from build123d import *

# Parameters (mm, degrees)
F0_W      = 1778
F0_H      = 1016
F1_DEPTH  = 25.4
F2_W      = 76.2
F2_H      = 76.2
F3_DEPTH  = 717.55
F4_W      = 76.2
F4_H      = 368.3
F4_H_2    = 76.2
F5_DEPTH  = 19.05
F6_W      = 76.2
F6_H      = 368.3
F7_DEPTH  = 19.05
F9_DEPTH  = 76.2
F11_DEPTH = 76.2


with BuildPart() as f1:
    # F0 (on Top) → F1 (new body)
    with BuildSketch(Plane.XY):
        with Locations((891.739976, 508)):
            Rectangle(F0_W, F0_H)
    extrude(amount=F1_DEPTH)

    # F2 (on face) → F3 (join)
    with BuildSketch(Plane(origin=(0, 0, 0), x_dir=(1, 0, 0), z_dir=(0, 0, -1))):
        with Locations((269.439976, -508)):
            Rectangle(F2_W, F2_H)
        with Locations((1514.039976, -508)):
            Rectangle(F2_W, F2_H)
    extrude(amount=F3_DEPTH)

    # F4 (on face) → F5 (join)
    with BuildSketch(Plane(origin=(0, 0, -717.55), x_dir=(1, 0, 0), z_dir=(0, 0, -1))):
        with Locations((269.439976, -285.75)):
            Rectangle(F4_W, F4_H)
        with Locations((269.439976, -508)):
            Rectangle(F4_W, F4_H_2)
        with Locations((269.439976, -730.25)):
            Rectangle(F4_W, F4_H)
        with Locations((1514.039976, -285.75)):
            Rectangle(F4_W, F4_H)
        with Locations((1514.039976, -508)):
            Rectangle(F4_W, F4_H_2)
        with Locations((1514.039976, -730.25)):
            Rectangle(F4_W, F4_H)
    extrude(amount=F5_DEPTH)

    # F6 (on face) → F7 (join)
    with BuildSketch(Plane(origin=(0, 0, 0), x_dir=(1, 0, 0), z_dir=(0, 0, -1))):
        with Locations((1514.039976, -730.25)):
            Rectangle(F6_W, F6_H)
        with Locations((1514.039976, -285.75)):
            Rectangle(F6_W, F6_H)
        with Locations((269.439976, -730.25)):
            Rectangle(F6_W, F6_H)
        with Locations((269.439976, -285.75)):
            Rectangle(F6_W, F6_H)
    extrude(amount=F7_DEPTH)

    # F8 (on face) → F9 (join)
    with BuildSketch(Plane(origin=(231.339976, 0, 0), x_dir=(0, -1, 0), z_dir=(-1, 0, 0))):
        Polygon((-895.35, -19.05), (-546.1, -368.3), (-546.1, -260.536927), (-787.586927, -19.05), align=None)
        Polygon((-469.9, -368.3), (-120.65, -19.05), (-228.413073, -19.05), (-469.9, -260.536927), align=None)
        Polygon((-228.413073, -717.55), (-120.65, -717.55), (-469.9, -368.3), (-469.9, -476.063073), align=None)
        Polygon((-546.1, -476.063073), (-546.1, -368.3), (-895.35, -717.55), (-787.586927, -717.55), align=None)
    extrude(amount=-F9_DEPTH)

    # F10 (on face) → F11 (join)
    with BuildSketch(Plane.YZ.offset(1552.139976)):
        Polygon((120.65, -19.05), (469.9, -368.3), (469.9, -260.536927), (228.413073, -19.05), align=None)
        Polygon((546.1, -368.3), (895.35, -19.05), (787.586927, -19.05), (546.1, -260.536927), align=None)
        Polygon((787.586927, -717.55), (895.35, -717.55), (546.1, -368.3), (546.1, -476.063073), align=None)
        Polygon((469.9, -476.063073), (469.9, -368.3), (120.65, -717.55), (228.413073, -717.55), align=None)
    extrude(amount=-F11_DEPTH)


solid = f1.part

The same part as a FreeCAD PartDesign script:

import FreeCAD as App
import Part
import Sketcher

V = App.Vector
Q = App.Units.Quantity


def add_polygon(sketch, points):
    """Adds a closed chain of lines whose ends are joined by coincident constraints."""
    first, n = sketch.GeometryCount, len(points)
    for a, b in zip(points, points[1:] + points[:1]):
        sketch.addGeometry(Part.LineSegment(App.Vector(*a, 0), App.Vector(*b, 0)), False)
    for i in range(n):
        sketch.addConstraint(Sketcher.Constraint("Coincident", first + i, 2, first + (i + 1) % n, 1))

doc = App.newDocument("Part")
params = doc.addObject("Spreadsheet::Sheet", "Params")
for row, (alias, value) in enumerate([
    ("sketch1_width", "70 in"),
    ("sketch1_height", "40 in"),
    ("pad1_length", "1 in"),
    ("sketch2_width", "3 in"),
    ("pad2_length", "28.25 in"),
    ("sketch3_width", "3 in"),
    ("sketch3_height", "32 in"),
    ("pad3_length", "0.75 in"),
    ("sketch4_width", "3 in"),
    ("sketch4_height", "14.5 in"),
    ("pad4_length", "0.75 in"),
    ("pad5_length", "3 in"),
    ("pad6_length", "3 in"),
], start=1):
    params.set(f"A{row}", alias)
    params.set(f"B{row}", "=" + value)
    params.setAlias(f"B{row}", alias)

body = doc.addObject("PartDesign::Body", "Body")

# Sketch on XY plane
sketch1 = body.newObject("Sketcher::SketchObject", "Sketch")
sketch1.AttachmentSupport = (doc.getObject("XY_Plane"), [""])
sketch1.MapMode = "FlatFace"
add_polygon(sketch1, [(3, 1016), (3, 0), (1781, 0), (1781, 1016)])  # lines 0-3
sketch1.addConstraint(Sketcher.Constraint("Vertical", 0))
sketch1.addConstraint(Sketcher.Constraint("Horizontal", 1))
sketch1.addConstraint(Sketcher.Constraint("Vertical", 2))
sketch1.addConstraint(Sketcher.Constraint("Horizontal", 3))
sketch1.addConstraint(Sketcher.Constraint("PointOnObject", 0, 2, -1))
sketch1.addConstraint(Sketcher.Constraint("DistanceX", 1, 1, 1, 2, Q("70 in")))
sketch1.addConstraint(Sketcher.Constraint("DistanceY", 0, 2, 0, 1, Q("40 in")))
sketch1.addConstraint(Sketcher.Constraint("DistanceX", -1, 1, 0, 2, 2.739976))
sketch1.setExpression("Constraints[9]", "Params.sketch1_width")
sketch1.setExpression("Constraints[10]", "Params.sketch1_height")
pad1 = body.newObject("PartDesign::Pad", "Pad")
pad1.Profile = sketch1
pad1.setExpression("Length", "Params.pad1_length")

# Sketch on XY plane
sketch2 = body.newObject("Sketcher::SketchObject", "Sketch001")
sketch2.AttachmentSupport = (doc.getObject("XY_Plane"), [""])
sketch2.MapMode = "FlatFace"
add_polygon(sketch2, [(231, 470), (231, 546), (308, 546), (308, 470)])  # lines 0-3
add_polygon(sketch2, [(1476, 470), (1476, 546), (1552, 546), (1552, 470)])  # lines 4-7
sketch2.addConstraint(Sketcher.Constraint("Vertical", 0))
sketch2.addConstraint(Sketcher.Constraint("Horizontal", 1))
sketch2.addConstraint(Sketcher.Constraint("Vertical", 2))
sketch2.addConstraint(Sketcher.Constraint("Horizontal", 3))
sketch2.addConstraint(Sketcher.Constraint("Vertical", 4))
sketch2.addConstraint(Sketcher.Constraint("Horizontal", 5))
sketch2.addConstraint(Sketcher.Constraint("Vertical", 6))
sketch2.addConstraint(Sketcher.Constraint("Horizontal", 7))
sketch2.addConstraint(Sketcher.Constraint("Horizontal", 1, 2, 4, 2))
sketch2.addConstraint(Sketcher.Constraint("Horizontal", 3, 2, 6, 2))
sketch2.addConstraint(Sketcher.Constraint("Equal", 3, 5))
sketch2.addConstraint(Sketcher.Constraint("Equal", 7, 0))
sketch2.addConstraint(Sketcher.Constraint("DistanceX", 1, 1, 1, 2, Q("3 in")))
sketch2.addConstraint(Sketcher.Constraint("DistanceX", 1, 2, 4, 2, Q("46 in")))
sketch2.addConstraint(Sketcher.Constraint("DistanceY", -1, 1, 0, 2, Q("21.5 in")))
sketch2.addConstraint(Sketcher.Constraint("DistanceX", -1, 1, 0, 2, 231.339976))
sketch2.setExpression("Constraints[20]", "Params.sketch2_width")
pad2 = body.newObject("PartDesign::Pad", "Pad001")
pad2.Profile = sketch2
pad2.setExpression("Length", "Params.pad2_length")
pad2.Reversed = True

# Sketch on XY plane
sketch3 = body.newObject("Sketcher::SketchObject", "Sketch002")
sketch3.AttachmentSupport = (doc.getObject("XY_Plane"), [""])
sketch3.MapMode = "FlatFace"
sketch3.AttachmentOffset = App.Placement(V(0, 0, -28.25 * 25.4), App.Rotation())
add_polygon(sketch3, [(231, 102), (231, 914), (308, 914), (308, 102)])  # lines 0-3
add_polygon(sketch3, [(1476, 102), (1476, 914), (1552, 914), (1552, 102)])  # lines 4-7
sketch3.addConstraint(Sketcher.Constraint("Vertical", 0))
sketch3.addConstraint(Sketcher.Constraint("Horizontal", 1))
sketch3.addConstraint(Sketcher.Constraint("Vertical", 2))
sketch3.addConstraint(Sketcher.Constraint("Horizontal", 3))
sketch3.addConstraint(Sketcher.Constraint("Vertical", 4))
sketch3.addConstraint(Sketcher.Constraint("Horizontal", 5))
sketch3.addConstraint(Sketcher.Constraint("Vertical", 6))
sketch3.addConstraint(Sketcher.Constraint("Horizontal", 7))
sketch3.addConstraint(Sketcher.Constraint("Horizontal", 1, 2, 4, 2))
sketch3.addConstraint(Sketcher.Constraint("Horizontal", 3, 2, 6, 2))
sketch3.addConstraint(Sketcher.Constraint("Equal", 3, 5))
sketch3.addConstraint(Sketcher.Constraint("DistanceX", 1, 1, 1, 2, Q("3 in")))
sketch3.addConstraint(Sketcher.Constraint("DistanceY", 0, 1, 0, 2, Q("32 in")))
sketch3.addConstraint(Sketcher.Constraint("DistanceY", -1, 1, 0, 2, Q("36 in")))
sketch3.addConstraint(Sketcher.Constraint("DistanceX", 1, 2, 4, 2, Q("46 in")))
sketch3.addConstraint(Sketcher.Constraint("DistanceX", -1, 1, 0, 2, 231.339976))
sketch3.setExpression("Constraints[19]", "Params.sketch3_width")
sketch3.setExpression("Constraints[20]", "Params.sketch3_height")
pad3 = body.newObject("PartDesign::Pad", "Pad002")
pad3.Profile = sketch3
pad3.setExpression("Length", "Params.pad3_length")
pad3.Reversed = True

# Sketch on XY plane
sketch4 = body.newObject("Sketcher::SketchObject", "Sketch003")
sketch4.AttachmentSupport = (doc.getObject("XY_Plane"), [""])
sketch4.MapMode = "FlatFace"
add_polygon(sketch4, [(1476, 546), (1476, 914), (1552, 914), (1552, 546)])  # lines 0-3
add_polygon(sketch4, [(1476, 102), (1476, 470), (1552, 470), (1552, 102)])  # lines 4-7
add_polygon(sketch4, [(231, 546), (231, 914), (308, 914), (308, 546)])  # lines 8-11
add_polygon(sketch4, [(231, 102), (231, 470), (308, 470), (308, 102)])  # lines 12-15
sketch4.addConstraint(Sketcher.Constraint("Vertical", 0))
sketch4.addConstraint(Sketcher.Constraint("Horizontal", 1))
sketch4.addConstraint(Sketcher.Constraint("Vertical", 2))
sketch4.addConstraint(Sketcher.Constraint("Horizontal", 3))
sketch4.addConstraint(Sketcher.Constraint("Vertical", 4))
sketch4.addConstraint(Sketcher.Constraint("Horizontal", 5))
sketch4.addConstraint(Sketcher.Constraint("Vertical", 6))
sketch4.addConstraint(Sketcher.Constraint("Horizontal", 7))
sketch4.addConstraint(Sketcher.Constraint("Vertical", 8))
sketch4.addConstraint(Sketcher.Constraint("Horizontal", 9))
sketch4.addConstraint(Sketcher.Constraint("Vertical", 10))
sketch4.addConstraint(Sketcher.Constraint("Horizontal", 11))
sketch4.addConstraint(Sketcher.Constraint("Vertical", 12))
sketch4.addConstraint(Sketcher.Constraint("Horizontal", 13))
sketch4.addConstraint(Sketcher.Constraint("Vertical", 14))
sketch4.addConstraint(Sketcher.Constraint("Horizontal", 15))
sketch4.addConstraint(Sketcher.Constraint("Horizontal", 1, 2, 8, 2))
sketch4.addConstraint(Sketcher.Constraint("Horizontal", 3, 2, 10, 2))
sketch4.addConstraint(Sketcher.Constraint("Horizontal", 5, 2, 12, 2))
sketch4.addConstraint(Sketcher.Constraint("Horizontal", 7, 2, 14, 2))
sketch4.addConstraint(Sketcher.Constraint("Vertical", 3, 2, 4, 2))
sketch4.addConstraint(Sketcher.Constraint("Vertical", 2, 2, 5, 2))
sketch4.addConstraint(Sketcher.Constraint("Vertical", 11, 2, 12, 2))
sketch4.addConstraint(Sketcher.Constraint("Vertical", 10, 2, 13, 2))
sketch4.addConstraint(Sketcher.Constraint("Equal", 7, 9))
sketch4.addConstraint(Sketcher.Constraint("Equal", 2, 4))
sketch4.addConstraint(Sketcher.Constraint("DistanceX", 1, 1, 1, 2, Q("3 in")))
sketch4.addConstraint(Sketcher.Constraint("DistanceY", 0, 1, 0, 2, Q("14.5 in")))
sketch4.addConstraint(Sketcher.Constraint("DistanceY", -1, 1, 0, 2, Q("36 in")))
sketch4.addConstraint(Sketcher.Constraint("DistanceY", -1, 1, 6, 2, Q("4 in")))
sketch4.addConstraint(Sketcher.Constraint("DistanceX", 8, 2, 0, 2, Q("49 in")))
sketch4.addConstraint(Sketcher.Constraint("DistanceX", -1, 1, 0, 2, 1475.939976))
sketch4.setExpression("Constraints[42]", "Params.sketch4_width")
sketch4.setExpression("Constraints[43]", "Params.sketch4_height")
pad4 = body.newObject("PartDesign::Pad", "Pad003")
pad4.Profile = sketch4
pad4.setExpression("Length", "Params.pad4_length")
pad4.Reversed = True

# Sketch on YZ plane
sketch5 = body.newObject("Sketcher::SketchObject", "Sketch004")
sketch5.AttachmentSupport = (doc.getObject("YZ_Plane"), [""])
sketch5.MapMode = "FlatFace"
sketch5.AttachmentOffset = App.Placement(V(0, 0, 231.339976), App.Rotation())
add_polygon(sketch5, [(895, -19), (546, -368), (546, -261), (788, -19)])  # lines 0-3
add_polygon(sketch5, [(470, -368), (121, -19), (228, -19), (470, -261)])  # lines 4-7
add_polygon(sketch5, [(228, -718), (121, -718), (470, -368), (470, -476)])  # lines 8-11
add_polygon(sketch5, [(546, -476), (546, -368), (895, -718), (788, -718)])  # lines 12-15
sketch5.addConstraint(Sketcher.Constraint("Vertical", 1))
sketch5.addConstraint(Sketcher.Constraint("Horizontal", 3))
sketch5.addConstraint(Sketcher.Constraint("Horizontal", 5))
sketch5.addConstraint(Sketcher.Constraint("Vertical", 7))
sketch5.addConstraint(Sketcher.Constraint("Horizontal", 8))
sketch5.addConstraint(Sketcher.Constraint("Vertical", 10))
sketch5.addConstraint(Sketcher.Constraint("Vertical", 12))
sketch5.addConstraint(Sketcher.Constraint("Horizontal", 14))
sketch5.addConstraint(Sketcher.Constraint("Coincident", 9, 2, 7, 2))
sketch5.addConstraint(Sketcher.Constraint("Coincident", 12, 2, 0, 2))
sketch5.addConstraint(Sketcher.Constraint("Parallel", 0, 2))
sketch5.addConstraint(Sketcher.Constraint("Perpendicular", 2, 4))
sketch5.addConstraint(Sketcher.Constraint("Parallel", 4, 6))
sketch5.addConstraint(Sketcher.Constraint("Perpendicular", 6, 9))
sketch5.addConstraint(Sketcher.Constraint("Parallel", 9, 11))
sketch5.addConstraint(Sketcher.Constraint("Perpendicular", 11, 13))
sketch5.addConstraint(Sketcher.Constraint("Parallel", 13, 15))
sketch5.addConstraint(Sketcher.Constraint("Horizontal", 3, 2, 4, 2))
sketch5.addConstraint(Sketcher.Constraint("Horizontal", 1, 2, 6, 2))
sketch5.addConstraint(Sketcher.Constraint("Horizontal", 0, 2, 7, 2))
sketch5.addConstraint(Sketcher.Constraint("Horizontal", 11, 2, 13, 2))
sketch5.addConstraint(Sketcher.Constraint("Horizontal", 10, 2, 15, 2))
sketch5.addConstraint(Sketcher.Constraint("Vertical", 4, 2, 8, 2))
sketch5.addConstraint(Sketcher.Constraint("Vertical", 5, 2, 11, 2))
sketch5.addConstraint(Sketcher.Constraint("Vertical", 3, 2, 13, 2))
sketch5.addConstraint(Sketcher.Constraint("DistanceX", 6, 2, 1, 2, Q("3 in")))
sketch5.addConstraint(Sketcher.Constraint("DistanceX", -1, 1, 0, 2, Q("21.5 in")))
sketch5.addConstraint(Sketcher.Constraint("DistanceY", 0, 2, -1, 1, Q("14.5 in")))
sketch5.addConstraint(Sketcher.Constraint("DistanceX", 4, 2, 3, 2, Q("30.5 in")))
sketch5.addConstraint(Sketcher.Constraint("DistanceX", 3, 1, 3, 2, 107.763073))
pad5 = body.newObject("PartDesign::Pad", "Pad004")
pad5.Profile = sketch5
pad5.setExpression("Length", "Params.pad5_length")

# Sketch on YZ plane
sketch6 = body.newObject("Sketcher::SketchObject", "Sketch005")
sketch6.AttachmentSupport = (doc.getObject("YZ_Plane"), [""])
sketch6.MapMode = "FlatFace"
sketch6.AttachmentOffset = App.Placement(V(0, 0, 1552.139976), App.Rotation())
add_polygon(sketch6, [(121, -19), (470, -368), (470, -261), (228, -19)])  # lines 0-3
add_polygon(sketch6, [(546, -368), (895, -19), (788, -19), (546, -261)])  # lines 4-7
add_polygon(sketch6, [(788, -718), (895, -718), (546, -368), (546, -476)])  # lines 8-11
add_polygon(sketch6, [(470, -476), (470, -368), (121, -718), (228, -718)])  # lines 12-15
sketch6.addConstraint(Sketcher.Constraint("Vertical", 1))
sketch6.addConstraint(Sketcher.Constraint("Horizontal", 3))
sketch6.addConstraint(Sketcher.Constraint("Horizontal", 5))
sketch6.addConstraint(Sketcher.Constraint("Vertical", 7))
sketch6.addConstraint(Sketcher.Constraint("Horizontal", 8))
sketch6.addConstraint(Sketcher.Constraint("Vertical", 10))
sketch6.addConstraint(Sketcher.Constraint("Vertical", 12))
sketch6.addConstraint(Sketcher.Constraint("Horizontal", 14))
sketch6.addConstraint(Sketcher.Constraint("Coincident", 9, 2, 7, 2))
sketch6.addConstraint(Sketcher.Constraint("Coincident", 12, 2, 0, 2))
sketch6.addConstraint(Sketcher.Constraint("Parallel", 0, 2))
sketch6.addConstraint(Sketcher.Constraint("Perpendicular", 2, 4))
sketch6.addConstraint(Sketcher.Constraint("Parallel", 4, 6))
sketch6.addConstraint(Sketcher.Constraint("Perpendicular", 6, 9))
sketch6.addConstraint(Sketcher.Constraint("Parallel", 9, 11))
sketch6.addConstraint(Sketcher.Constraint("Perpendicular", 11, 13))
sketch6.addConstraint(Sketcher.Constraint("Parallel", 13, 15))
sketch6.addConstraint(Sketcher.Constraint("Horizontal", 3, 2, 4, 2))
sketch6.addConstraint(Sketcher.Constraint("Horizontal", 1, 2, 6, 2))
sketch6.addConstraint(Sketcher.Constraint("Horizontal", 0, 2, 7, 2))
sketch6.addConstraint(Sketcher.Constraint("Horizontal", 11, 2, 13, 2))
sketch6.addConstraint(Sketcher.Constraint("Horizontal", 10, 2, 15, 2))
sketch6.addConstraint(Sketcher.Constraint("Vertical", 4, 2, 8, 2))
sketch6.addConstraint(Sketcher.Constraint("Vertical", 5, 2, 11, 2))
sketch6.addConstraint(Sketcher.Constraint("Vertical", 3, 2, 13, 2))
sketch6.addConstraint(Sketcher.Constraint("DistanceX", 1, 2, 6, 2, Q("3 in")))
sketch6.addConstraint(Sketcher.Constraint("DistanceX", -1, 1, 0, 2, Q("18.5 in")))
sketch6.addConstraint(Sketcher.Constraint("DistanceY", 0, 2, -1, 1, Q("14.5 in")))
sketch6.addConstraint(Sketcher.Constraint("DistanceX", 3, 2, 4, 2, Q("30.5 in")))
sketch6.addConstraint(Sketcher.Constraint("DistanceX", 3, 2, 3, 1, 107.763073))
pad6 = body.newObject("PartDesign::Pad", "Pad005")
pad6.Profile = sketch6
pad6.setExpression("Length", "Params.pad6_length")
pad6.Reversed = True

doc.recompute()
